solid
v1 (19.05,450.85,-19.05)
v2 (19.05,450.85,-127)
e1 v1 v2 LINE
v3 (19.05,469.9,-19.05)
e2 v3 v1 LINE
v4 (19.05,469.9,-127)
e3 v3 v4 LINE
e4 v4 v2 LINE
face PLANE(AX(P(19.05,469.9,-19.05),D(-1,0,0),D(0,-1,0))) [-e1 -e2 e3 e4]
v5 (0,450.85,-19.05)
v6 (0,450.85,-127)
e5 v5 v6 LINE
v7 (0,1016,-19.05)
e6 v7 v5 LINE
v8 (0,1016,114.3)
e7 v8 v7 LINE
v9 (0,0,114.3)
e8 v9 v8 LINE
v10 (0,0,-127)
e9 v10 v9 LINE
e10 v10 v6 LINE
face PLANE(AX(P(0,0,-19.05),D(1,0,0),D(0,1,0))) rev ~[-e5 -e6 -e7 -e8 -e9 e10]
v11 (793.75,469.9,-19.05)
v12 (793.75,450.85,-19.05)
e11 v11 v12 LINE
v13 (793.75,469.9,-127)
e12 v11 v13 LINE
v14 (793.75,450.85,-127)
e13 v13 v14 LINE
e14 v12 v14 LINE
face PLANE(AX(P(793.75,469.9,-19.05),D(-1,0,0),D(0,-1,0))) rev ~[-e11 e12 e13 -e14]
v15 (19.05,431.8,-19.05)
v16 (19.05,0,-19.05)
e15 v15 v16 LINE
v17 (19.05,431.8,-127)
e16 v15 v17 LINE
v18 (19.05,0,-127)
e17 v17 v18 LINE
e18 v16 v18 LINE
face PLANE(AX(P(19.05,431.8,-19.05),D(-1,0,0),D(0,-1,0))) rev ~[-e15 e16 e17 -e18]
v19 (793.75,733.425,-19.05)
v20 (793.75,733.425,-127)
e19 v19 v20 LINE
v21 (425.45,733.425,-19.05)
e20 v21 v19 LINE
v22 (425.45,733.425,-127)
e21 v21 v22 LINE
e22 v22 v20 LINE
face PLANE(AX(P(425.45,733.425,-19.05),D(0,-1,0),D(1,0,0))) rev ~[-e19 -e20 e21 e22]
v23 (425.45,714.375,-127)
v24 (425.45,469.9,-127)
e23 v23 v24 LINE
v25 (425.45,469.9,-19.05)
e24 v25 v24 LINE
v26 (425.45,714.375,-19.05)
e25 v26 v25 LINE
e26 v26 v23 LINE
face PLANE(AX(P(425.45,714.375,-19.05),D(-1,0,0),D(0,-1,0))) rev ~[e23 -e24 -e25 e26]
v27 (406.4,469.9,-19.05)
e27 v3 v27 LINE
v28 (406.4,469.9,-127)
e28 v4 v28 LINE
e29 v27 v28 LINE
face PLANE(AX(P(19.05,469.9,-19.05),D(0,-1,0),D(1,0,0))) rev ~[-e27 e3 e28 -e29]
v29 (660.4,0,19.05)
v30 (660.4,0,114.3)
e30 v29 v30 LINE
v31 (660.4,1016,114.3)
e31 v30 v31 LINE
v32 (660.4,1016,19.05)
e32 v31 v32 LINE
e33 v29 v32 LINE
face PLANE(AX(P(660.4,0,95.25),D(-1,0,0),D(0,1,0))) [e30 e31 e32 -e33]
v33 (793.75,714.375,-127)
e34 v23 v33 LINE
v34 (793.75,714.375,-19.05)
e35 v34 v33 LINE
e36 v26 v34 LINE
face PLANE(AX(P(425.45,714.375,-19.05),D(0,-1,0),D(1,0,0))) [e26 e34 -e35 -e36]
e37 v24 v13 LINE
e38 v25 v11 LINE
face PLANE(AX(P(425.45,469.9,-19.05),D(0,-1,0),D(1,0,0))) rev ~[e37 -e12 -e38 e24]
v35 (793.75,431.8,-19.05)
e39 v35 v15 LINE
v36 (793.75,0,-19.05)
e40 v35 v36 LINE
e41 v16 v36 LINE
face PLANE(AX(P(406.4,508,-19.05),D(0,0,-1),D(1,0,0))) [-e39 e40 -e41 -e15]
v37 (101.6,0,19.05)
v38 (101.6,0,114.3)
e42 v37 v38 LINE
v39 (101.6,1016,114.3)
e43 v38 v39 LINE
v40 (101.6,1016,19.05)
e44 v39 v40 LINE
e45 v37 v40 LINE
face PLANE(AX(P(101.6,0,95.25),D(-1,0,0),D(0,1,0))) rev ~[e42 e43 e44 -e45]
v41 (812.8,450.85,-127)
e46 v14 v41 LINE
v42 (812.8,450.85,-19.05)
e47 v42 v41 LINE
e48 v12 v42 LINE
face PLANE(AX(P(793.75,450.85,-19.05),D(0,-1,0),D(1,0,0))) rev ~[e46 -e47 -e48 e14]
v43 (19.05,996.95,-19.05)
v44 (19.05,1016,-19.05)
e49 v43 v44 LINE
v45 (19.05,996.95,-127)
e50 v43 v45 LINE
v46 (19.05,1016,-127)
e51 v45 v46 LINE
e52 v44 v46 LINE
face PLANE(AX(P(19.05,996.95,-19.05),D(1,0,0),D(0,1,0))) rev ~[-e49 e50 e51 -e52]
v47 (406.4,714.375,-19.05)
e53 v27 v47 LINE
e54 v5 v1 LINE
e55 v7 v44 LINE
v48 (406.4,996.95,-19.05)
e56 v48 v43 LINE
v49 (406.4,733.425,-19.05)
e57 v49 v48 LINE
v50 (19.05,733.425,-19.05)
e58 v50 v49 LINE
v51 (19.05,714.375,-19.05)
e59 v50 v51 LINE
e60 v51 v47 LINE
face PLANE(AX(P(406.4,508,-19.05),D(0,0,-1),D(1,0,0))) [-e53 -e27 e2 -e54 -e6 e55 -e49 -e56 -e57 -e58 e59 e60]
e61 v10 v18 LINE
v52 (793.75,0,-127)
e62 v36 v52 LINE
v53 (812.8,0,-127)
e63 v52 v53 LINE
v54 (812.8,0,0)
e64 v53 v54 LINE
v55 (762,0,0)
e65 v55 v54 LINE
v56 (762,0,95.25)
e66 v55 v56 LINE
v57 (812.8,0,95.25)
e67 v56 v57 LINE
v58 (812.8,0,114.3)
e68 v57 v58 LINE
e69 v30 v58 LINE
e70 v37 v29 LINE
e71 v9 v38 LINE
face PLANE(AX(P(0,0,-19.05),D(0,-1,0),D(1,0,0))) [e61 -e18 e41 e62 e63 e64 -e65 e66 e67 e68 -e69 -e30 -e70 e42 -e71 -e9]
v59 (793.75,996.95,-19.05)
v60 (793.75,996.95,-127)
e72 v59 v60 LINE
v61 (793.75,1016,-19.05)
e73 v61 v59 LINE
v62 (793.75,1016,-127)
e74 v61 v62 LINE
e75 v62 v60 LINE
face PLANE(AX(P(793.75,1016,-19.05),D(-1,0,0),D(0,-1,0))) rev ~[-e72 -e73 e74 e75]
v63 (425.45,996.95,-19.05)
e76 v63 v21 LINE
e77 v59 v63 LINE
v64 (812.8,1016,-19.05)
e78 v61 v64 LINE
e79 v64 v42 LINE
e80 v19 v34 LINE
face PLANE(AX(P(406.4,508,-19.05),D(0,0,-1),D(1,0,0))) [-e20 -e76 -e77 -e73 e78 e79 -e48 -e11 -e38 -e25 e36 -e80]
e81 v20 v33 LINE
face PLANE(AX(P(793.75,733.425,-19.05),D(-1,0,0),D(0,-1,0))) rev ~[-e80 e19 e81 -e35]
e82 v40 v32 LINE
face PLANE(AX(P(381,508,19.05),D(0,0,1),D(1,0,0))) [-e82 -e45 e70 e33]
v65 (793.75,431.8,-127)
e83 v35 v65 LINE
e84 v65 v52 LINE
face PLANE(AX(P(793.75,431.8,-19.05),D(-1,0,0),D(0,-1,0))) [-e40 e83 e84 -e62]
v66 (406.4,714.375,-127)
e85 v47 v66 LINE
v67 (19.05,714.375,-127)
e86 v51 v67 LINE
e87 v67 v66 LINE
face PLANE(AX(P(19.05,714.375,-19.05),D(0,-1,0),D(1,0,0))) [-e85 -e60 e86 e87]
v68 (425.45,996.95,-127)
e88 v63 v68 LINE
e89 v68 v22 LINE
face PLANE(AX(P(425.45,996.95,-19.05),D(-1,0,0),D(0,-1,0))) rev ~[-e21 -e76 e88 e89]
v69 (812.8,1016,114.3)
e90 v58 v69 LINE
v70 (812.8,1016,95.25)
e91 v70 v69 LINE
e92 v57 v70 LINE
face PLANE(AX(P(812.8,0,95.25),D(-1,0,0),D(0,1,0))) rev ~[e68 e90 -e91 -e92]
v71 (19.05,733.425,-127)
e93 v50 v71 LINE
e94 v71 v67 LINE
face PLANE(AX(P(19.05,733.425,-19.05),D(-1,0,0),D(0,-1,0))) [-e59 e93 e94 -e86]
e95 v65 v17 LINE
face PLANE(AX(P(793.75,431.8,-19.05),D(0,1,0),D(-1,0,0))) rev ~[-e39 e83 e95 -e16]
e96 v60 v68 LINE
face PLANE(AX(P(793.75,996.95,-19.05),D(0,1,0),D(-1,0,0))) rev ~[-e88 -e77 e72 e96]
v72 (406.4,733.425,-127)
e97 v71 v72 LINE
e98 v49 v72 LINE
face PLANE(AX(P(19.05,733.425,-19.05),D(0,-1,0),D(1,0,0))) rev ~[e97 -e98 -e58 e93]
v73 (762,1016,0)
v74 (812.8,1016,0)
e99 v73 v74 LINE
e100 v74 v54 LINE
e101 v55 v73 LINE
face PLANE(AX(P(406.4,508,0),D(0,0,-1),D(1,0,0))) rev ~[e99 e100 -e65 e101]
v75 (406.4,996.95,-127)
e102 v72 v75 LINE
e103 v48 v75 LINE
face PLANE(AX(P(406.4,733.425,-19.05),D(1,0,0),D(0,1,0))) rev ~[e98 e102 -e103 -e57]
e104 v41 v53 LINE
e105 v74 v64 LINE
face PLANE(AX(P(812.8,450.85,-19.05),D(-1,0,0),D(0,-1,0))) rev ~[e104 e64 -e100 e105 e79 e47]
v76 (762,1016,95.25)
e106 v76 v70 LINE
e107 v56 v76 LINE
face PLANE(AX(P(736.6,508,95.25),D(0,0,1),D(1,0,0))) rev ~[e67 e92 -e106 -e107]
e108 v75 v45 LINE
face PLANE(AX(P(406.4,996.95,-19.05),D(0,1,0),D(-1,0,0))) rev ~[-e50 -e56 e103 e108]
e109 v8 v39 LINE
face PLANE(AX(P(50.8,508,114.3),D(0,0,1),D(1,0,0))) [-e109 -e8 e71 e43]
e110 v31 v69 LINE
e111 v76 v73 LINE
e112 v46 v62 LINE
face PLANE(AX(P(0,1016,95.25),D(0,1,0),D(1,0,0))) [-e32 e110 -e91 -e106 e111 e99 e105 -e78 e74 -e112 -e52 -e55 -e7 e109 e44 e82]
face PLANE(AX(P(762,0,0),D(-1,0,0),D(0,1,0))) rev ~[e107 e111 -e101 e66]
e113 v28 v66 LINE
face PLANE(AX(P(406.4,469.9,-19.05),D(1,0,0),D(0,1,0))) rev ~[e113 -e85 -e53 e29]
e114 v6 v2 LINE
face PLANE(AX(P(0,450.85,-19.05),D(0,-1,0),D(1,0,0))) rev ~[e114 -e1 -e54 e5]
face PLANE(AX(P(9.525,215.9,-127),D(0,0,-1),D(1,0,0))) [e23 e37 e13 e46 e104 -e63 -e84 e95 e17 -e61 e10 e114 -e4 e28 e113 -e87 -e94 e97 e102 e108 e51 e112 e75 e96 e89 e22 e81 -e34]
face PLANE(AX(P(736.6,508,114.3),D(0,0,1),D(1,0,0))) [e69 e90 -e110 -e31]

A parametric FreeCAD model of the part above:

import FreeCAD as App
import Part
import Sketcher
from FreeCAD import Vector
Q = App.Units.Quantity


def add_polygon(sketch, points):
    """Adds a closed chain of lines whose ends are joined by coincident constraints."""
    first, n = sketch.GeometryCount, len(points)
    for a, b in zip(points, points[1:] + points[:1]):
        sketch.addGeometry(Part.LineSegment(App.Vector(*a, 0), App.Vector(*b, 0)), False)
    for i in range(n):
        sketch.addConstraint(Sketcher.Constraint("Coincident", first + i, 2, first + (i + 1) % n, 1))

doc = App.newDocument("Part")
body = doc.addObject("PartDesign::Body", "Body")

# Sketch on XY plane
sketch1 = body.newObject("Sketcher::SketchObject", "Sketch")
sketch1.AttachmentSupport = (doc.getObject("XY_Plane"), [""])
sketch1.MapMode = "FlatFace"
add_polygon(sketch1, [(0, 1016), (0, 0), (762, 0), (762, 1016)])  # lines 0-3
sketch1.addConstraint([
    Sketcher.Constraint("Vertical", 0),
    Sketcher.Constraint("Horizontal", 1),
    Sketcher.Constraint("Vertical", 2),
    Sketcher.Constraint("Horizontal", 3),
    Sketcher.Constraint("Coincident", 0, 2, -1, 1),
    Sketcher.Constraint("DistanceX", 1, 1, 1, 2, Q("30 in")),
    Sketcher.Constraint("DistanceY", 0, 2, 0, 1, Q("40 in")),
])
pad1 = body.newObject("PartDesign::Pad", "Pad")
pad1.Profile = sketch1
pad1.Length = Q("0.75 in")

# Sketch on XY plane
sketch2 = body.newObject("Sketcher::SketchObject", "Sketch001")
sketch2.AttachmentSupport = (doc.getObject("XY_Plane"), [""])
sketch2.MapMode = "FlatFace"
sketch2.AttachmentOffset = App.Placement(Vector(0, 0, 0.75 * 25.4), App.Rotation())
add_polygon(sketch2, [(0, 1016), (0, 0), (102, 0), (102, 1016)])  # lines 0-3
add_polygon(sketch2, [(660, 1016), (660, 0), (762, 0), (762, 1016)])  # lines 4-7
sketch2.addConstraint([
    Sketcher.Constraint("Vertical", 0),
    Sketcher.Constraint("Horizontal", 1),
    Sketcher.Constraint("Vertical", 2),
    Sketcher.Constraint("Horizontal", 3),
    Sketcher.Constraint("Vertical", 4),
    Sketcher.Constraint("Horizontal", 5),
    Sketcher.Constraint("Vertical", 6),
    Sketcher.Constraint("Horizontal", 7),
    Sketcher.Constraint("Coincident", 0, 2, -1, 1),
    Sketcher.Constraint("PointOnObject", 4, 2, -1),
    Sketcher.Constraint("Horizontal", 3, 2, 6, 2),
    Sketcher.Constraint("Equal", 3, 5),
    Sketcher.Constraint("DistanceX", 1, 1, 1, 2, Q("4 in")),
    Sketcher.Constraint("DistanceY", 0, 2, 0, 1, Q("40 in")),
    Sketcher.Constraint("DistanceX", -1, 1, 4, 2, Q("26 in")),
])
pad2 = body.newObject("PartDesign::Pad", "Pad001")
pad2.Profile = sketch2
pad2.Length = Q("3 in")

# Sketch on XY plane
sketch3 = body.newObject("Sketcher::SketchObject", "Sketch002")
sketch3.AttachmentSupport = (doc.getObject("XY_Plane"), [""])
sketch3.MapMode = "FlatFace"
sketch3.AttachmentOffset = App.Placement(Vector(0, 0, 3.75 * 25.4), App.Rotation())
add_polygon(sketch3, [(660, 1016), (660, 0), (813, 0), (813, 1016)])  # lines 0-3
sketch3.addConstraint([
    Sketcher.Constraint("Vertical", 0),
    Sketcher.Constraint("Horizontal", 1),
    Sketcher.Constraint("Vertical", 2),
    Sketcher.Constraint("Horizontal", 3),
    Sketcher.Constraint("PointOnObject", 0, 2, -1),
    Sketcher.Constraint("DistanceX", 1, 1, 1, 2, Q("6 in")),
    Sketcher.Constraint("DistanceY", 0, 2, 0, 1, Q("40 in")),
    Sketcher.Constraint("DistanceX", -1, 1, 0, 2, Q("26 in")),
])
pad3 = body.newObject("PartDesign::Pad", "Pad002")
pad3.Profile = sketch3
pad3.Length = Q("0.75 in")

# Sketch on XY plane
sketch4 = body.newObject("Sketcher::SketchObject", "Sketch003")
sketch4.AttachmentSupport = (doc.getObject("XY_Plane"), [""])
sketch4.MapMode = "FlatFace"
add_polygon(sketch4, [(0, 0), (0, 1016), (813, 1016), (813, 0)])  # lines 0-3
sketch4.addConstraint([
    Sketcher.Constraint("Vertical", 0),
    Sketcher.Constraint("Horizontal", 1),
    Sketcher.Constraint("Vertical", 2),
    Sketcher.Constraint("Horizontal", 3),
    Sketcher.Constraint("Coincident", 3, 2, -1, 1),
    Sketcher.Constraint("DistanceX", 1, 1, 1, 2, Q("32 in")),
    Sketcher.Constraint("DistanceY", 0, 1, 0, 2, Q("40 in")),
])
pad4 = body.newObject("PartDesign::Pad", "Pad003")
pad4.Profile = sketch4
pad4.Length = Q("0.75 in")
pad4.Reversed = True

# Sketch on XY plane
sketch5 = body.newObject("Sketcher::SketchObject", "Sketch004")
sketch5.AttachmentSupport = (doc.getObject("XY_Plane"), [""])
sketch5.MapMode = "FlatFace"
sketch5.AttachmentOffset = App.Placement(Vector(0, 0, 3.75 * 25.4), App.Rotation())
add_polygon(sketch5, [(0, 1016), (0, 0), (102, 0), (102, 1016)])  # lines 0-3
sketch5.addConstraint([
    Sketcher.Constraint("Vertical", 0),
    Sketcher.Constraint("Horizontal", 1),
    Sketcher.Constraint("Vertical", 2),
    Sketcher.Constraint("Horizontal", 3),
    Sketcher.Constraint("Coincident", 0, 2, -1, 1),
    Sketcher.Constraint("DistanceX", 1, 1, 1, 2, Q("4 in")),
    Sketcher.Constraint("DistanceY", 0, 2, 0, 1, Q("40 in")),
])
pad5 = body.newObject("PartDesign::Pad", "Pad004")
pad5.Profile = sketch5
pad5.Length = Q("0.75 in")

# Sketch on XY plane
sketch6 = body.newObject("Sketcher::SketchObject", "Sketch005")
sketch6.AttachmentSupport = (doc.getObject("XY_Plane"), [""])
sketch6.MapMode = "FlatFace"
sketch6.AttachmentOffset = App.Placement(Vector(0, 0, -0.75 * 25.4), App.Rotation())
add_polygon(sketch6, [(0, 0), (0, 451), (19, 451), (19, 470), (406, 470), (406, 714), (19, 714), (19, 733), (406, 733), (406, 997), (19, 997), (19, 1016), (794, 1016), (794, 997), (425, 997), (425, 733), (794, 733), (794, 714), (425, 714), (425, 470), (794, 470), (794, 451), (813, 451), (813, 0), (794, 0), (794, 432), (19, 432), (19, 0)])  # lines 0-27
sketch6.addConstraint([
    Sketcher.Constraint("Vertical", 0),
    Sketcher.Constraint("Horizontal", 1),
    Sketcher.Constraint("Vertical", 2),
    Sketcher.Constraint("Horizontal", 3),
    Sketcher.Constraint("Vertical", 4),
    Sketcher.Constraint("Horizontal", 5),
    Sketcher.Constraint("Vertical", 6),
    Sketcher.Constraint("Horizontal", 7),
    Sketcher.Constraint("Vertical", 8),
    Sketcher.Constraint("Horizontal", 9),
    Sketcher.Constraint("Vertical", 10),
    Sketcher.Constraint("Horizontal", 11),
    Sketcher.Constraint("Vertical", 12),
    Sketcher.Constraint("Horizontal", 13),
    Sketcher.Constraint("Vertical", 14),
    Sketcher.Constraint("Horizontal", 15),
    Sketcher.Constraint("Vertical", 16),
    Sketcher.Constraint("Horizontal", 17),
    Sketcher.Constraint("Vertical", 18),
    Sketcher.Constraint("Horizontal", 19),
    Sketcher.Constraint("Vertical", 20),
    Sketcher.Constraint("Horizontal", 21),
    Sketcher.Constraint("Vertical", 22),
    Sketcher.Constraint("Horizontal", 23),
    Sketcher.Constraint("Vertical", 24),
    Sketcher.Constraint("Horizontal", 25),
    Sketcher.Constraint("Vertical", 26),
    Sketcher.Constraint("Horizontal", 27),
    Sketcher.Constraint("Coincident", 27, 2, -1, 1),
    Sketcher.Constraint("PointOnObject", 22, 2, -1),
    Sketcher.Constraint("Horizontal", 9, 2, 12, 2),
    Sketcher.Constraint("Horizontal", 7, 2, 14, 2),
    Sketcher.Constraint("Horizontal", 5, 2, 16, 2),
    Sketcher.Constraint("Horizontal", 3, 2, 18, 2),
    Sketcher.Constraint("Horizontal", 1, 2, 20, 2),
    Sketcher.Constraint("Vertical", 2, 2, 5, 2),
    Sketcher.Constraint("Vertical", 4, 2, 7, 2),
    Sketcher.Constraint("Vertical", 6, 2, 9, 2),
    Sketcher.Constraint("Vertical", 12, 2, 15, 2),
    Sketcher.Constraint("Vertical", 14, 2, 17, 2),
    Sketcher.Constraint("Vertical", 16, 2, 19, 2),
    Sketcher.Constraint("Vertical", 20, 2, 23, 2),
    Sketcher.Constraint("Vertical", 10, 2, 25, 2),
    Sketcher.Constraint("Equal", 1, 21),
    Sketcher.Constraint("Equal", 27, 2),
    Sketcher.Constraint("Equal", 2, 6),
    Sketcher.Constraint("Equal", 6, 10),
    Sketcher.Constraint("DistanceY", 24, 1, 24, 2, Q("17 in")),
    Sketcher.Constraint("DistanceX", 11, 1, 11, 2, Q("30.5 in")),
    Sketcher.Constraint("DistanceX", 13, 2, 13, 1, Q("14.5 in")),
    Sketcher.Constraint("DistanceX", -1, 1, 3, 2, Q("16 in")),
    Sketcher.Constraint("DistanceY", -1, 1, 10, 2, Q("40 in")),
    Sketcher.Constraint("DistanceX", -1, 1, 21, 2, Q("32 in")),
    Sketcher.Constraint("DistanceY", 0, 1, 0, 2, Q("17.75 in")),
    Sketcher.Constraint("DistanceY", 4, 1, 4, 2, Q("9.625 in")),
])
pad6 = body.newObject("PartDesign::Pad", "Pad005")
pad6.Profile = sketch6
pad6.Length = Q("4.25 in")
pad6.Reversed = True

doc.recompute()
